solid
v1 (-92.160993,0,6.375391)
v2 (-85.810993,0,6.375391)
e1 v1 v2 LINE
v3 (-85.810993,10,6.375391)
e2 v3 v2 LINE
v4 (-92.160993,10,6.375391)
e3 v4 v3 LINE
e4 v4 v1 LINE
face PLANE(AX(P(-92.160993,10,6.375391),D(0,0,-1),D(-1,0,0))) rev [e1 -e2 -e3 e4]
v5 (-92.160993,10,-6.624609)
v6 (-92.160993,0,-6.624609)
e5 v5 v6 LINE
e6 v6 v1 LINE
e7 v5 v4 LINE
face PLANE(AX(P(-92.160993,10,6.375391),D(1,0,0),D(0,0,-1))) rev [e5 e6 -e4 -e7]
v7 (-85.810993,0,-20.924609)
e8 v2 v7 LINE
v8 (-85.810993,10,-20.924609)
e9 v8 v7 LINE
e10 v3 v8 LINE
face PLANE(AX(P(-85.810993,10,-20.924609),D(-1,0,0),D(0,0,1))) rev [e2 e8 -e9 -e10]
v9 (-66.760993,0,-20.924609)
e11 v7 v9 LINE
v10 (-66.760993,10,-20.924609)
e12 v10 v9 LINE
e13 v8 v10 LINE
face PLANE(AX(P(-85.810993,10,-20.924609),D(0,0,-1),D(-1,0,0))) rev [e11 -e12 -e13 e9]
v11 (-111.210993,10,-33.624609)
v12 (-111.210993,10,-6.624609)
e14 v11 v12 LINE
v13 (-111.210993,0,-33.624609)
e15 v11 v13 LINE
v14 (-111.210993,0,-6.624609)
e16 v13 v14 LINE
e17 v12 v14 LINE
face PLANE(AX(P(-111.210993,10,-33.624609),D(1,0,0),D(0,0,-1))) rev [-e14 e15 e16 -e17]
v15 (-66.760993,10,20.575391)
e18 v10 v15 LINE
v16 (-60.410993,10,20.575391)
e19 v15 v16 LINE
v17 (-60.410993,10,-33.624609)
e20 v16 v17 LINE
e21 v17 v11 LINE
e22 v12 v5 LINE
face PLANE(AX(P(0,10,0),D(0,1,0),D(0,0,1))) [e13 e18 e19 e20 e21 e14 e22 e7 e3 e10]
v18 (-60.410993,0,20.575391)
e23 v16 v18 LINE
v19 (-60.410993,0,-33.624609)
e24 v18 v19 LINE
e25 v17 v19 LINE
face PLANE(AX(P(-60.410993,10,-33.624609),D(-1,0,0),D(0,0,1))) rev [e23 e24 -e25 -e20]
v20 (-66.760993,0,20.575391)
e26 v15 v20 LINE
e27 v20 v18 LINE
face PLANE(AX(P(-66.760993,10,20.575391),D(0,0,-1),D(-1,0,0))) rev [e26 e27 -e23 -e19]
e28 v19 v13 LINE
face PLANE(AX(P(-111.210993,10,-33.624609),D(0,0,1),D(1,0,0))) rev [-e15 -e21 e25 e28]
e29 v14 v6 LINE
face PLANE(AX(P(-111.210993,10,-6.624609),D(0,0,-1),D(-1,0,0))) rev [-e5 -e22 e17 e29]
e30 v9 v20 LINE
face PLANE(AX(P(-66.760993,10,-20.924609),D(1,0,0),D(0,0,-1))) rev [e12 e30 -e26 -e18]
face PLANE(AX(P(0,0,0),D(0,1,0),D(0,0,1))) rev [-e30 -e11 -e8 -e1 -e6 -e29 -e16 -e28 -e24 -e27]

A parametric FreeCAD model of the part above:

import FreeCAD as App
import Part
import Sketcher
from FreeCAD import Vector


def add_polygon(sketch, points):
    """Adds a closed chain of lines whose ends are joined by coincident constraints."""
    first, n = sketch.GeometryCount, len(points)
    for a, b in zip(points, points[1:] + points[:1]):
        sketch.addGeometry(Part.LineSegment(App.Vector(*a, 0), App.Vector(*b, 0)), False)
    for i in range(n):
        sketch.addConstraint(Sketcher.Constraint("Coincident", first + i, 2, first + (i + 1) % n, 1))

doc = App.newDocument("Part")
params = doc.addObject("Spreadsheet::Sheet", "Params")
for row, (alias, value) in enumerate([
    ("sketch1_height", "27 mm"),
    ("sketch1_height2", "13 mm"),
    ("sketch1_width", "50.8 mm"),
    ("sketch1_height3", "27.3 mm"),
    ("sketch1_height4", "41.5 mm"),
    ("pad1_length", "10 mm"),
], start=1):
    params.set(f"A{row}", alias)
    params.set(f"B{row}", "=" + value)
    params.setAlias(f"B{row}", alias)

body = doc.addObject("PartDesign::Body", "Body")

# Sketch on XZ plane
sketch1 = doc.addObject("Sketcher::SketchObject", "Sketch")
body.addObject(sketch1)
sketch1.AttachmentSupport = (doc.XZ_Plane, [""])
sketch1.MapMode = "FlatFace"
add_polygon(sketch1, [(-60, -34), (-111, -34), (-111, -7), (-92, -7), (-92, 6), (-86, 6), (-86, -21), (-67, -21), (-67, 21), (-60, 21)])  # lines 0-9
sketch1.addConstraint([
    Sketcher.Constraint("Horizontal", 0),
    Sketcher.Constraint("Vertical", 1),
    Sketcher.Constraint("Horizontal", 2),
    Sketcher.Constraint("Vertical", 3),
    Sketcher.Constraint("Horizontal", 4),
    Sketcher.Constraint("Vertical", 5),
    Sketcher.Constraint("Horizontal", 6),
    Sketcher.Constraint("Vertical", 7),
    Sketcher.Constraint("Horizontal", 8),
    Sketcher.Constraint("Vertical", 9),
    Sketcher.Constraint("Equal", 2, 6),
    Sketcher.Constraint("Equal", 4, 8),
    Sketcher.Constraint("DistanceY", 1, 1, 1, 2, 27.0),
    Sketcher.Constraint("DistanceY", 3, 1, 3, 2, 13.0),
    Sketcher.Constraint("DistanceX", 0, 2, 0, 1, 50.8),
    Sketcher.Constraint("DistanceY", 5, 2, 5, 1, 27.3),
    Sketcher.Constraint("DistanceY", 7, 1, 7, 2, 41.5),
    Sketcher.Constraint("DistanceX", 2, 1, 2, 2, 19.05),
    Sketcher.Constraint("DistanceY", 0, 2, -1, 1, 33.624609),
    Sketcher.Constraint("DistanceX", 0, 2, -1, 1, 111.210993),
])
sketch1.setExpression("Constraints[22]", "Params.sketch1_height")
sketch1.setExpression("Constraints[23]", "Params.sketch1_height2")
sketch1.setExpression("Constraints[24]", "Params.sketch1_width")
sketch1.setExpression("Constraints[25]", "Params.sketch1_height3")
sketch1.setExpression("Constraints[26]", "Params.sketch1_height4")
pad1 = doc.addObject("PartDesign::Pad", "Pad")
body.addObject(pad1)
pad1.Profile = sketch1
pad1.setExpression("Length", "Params.pad1_length")
pad1.Reversed = True

doc.recompute()
